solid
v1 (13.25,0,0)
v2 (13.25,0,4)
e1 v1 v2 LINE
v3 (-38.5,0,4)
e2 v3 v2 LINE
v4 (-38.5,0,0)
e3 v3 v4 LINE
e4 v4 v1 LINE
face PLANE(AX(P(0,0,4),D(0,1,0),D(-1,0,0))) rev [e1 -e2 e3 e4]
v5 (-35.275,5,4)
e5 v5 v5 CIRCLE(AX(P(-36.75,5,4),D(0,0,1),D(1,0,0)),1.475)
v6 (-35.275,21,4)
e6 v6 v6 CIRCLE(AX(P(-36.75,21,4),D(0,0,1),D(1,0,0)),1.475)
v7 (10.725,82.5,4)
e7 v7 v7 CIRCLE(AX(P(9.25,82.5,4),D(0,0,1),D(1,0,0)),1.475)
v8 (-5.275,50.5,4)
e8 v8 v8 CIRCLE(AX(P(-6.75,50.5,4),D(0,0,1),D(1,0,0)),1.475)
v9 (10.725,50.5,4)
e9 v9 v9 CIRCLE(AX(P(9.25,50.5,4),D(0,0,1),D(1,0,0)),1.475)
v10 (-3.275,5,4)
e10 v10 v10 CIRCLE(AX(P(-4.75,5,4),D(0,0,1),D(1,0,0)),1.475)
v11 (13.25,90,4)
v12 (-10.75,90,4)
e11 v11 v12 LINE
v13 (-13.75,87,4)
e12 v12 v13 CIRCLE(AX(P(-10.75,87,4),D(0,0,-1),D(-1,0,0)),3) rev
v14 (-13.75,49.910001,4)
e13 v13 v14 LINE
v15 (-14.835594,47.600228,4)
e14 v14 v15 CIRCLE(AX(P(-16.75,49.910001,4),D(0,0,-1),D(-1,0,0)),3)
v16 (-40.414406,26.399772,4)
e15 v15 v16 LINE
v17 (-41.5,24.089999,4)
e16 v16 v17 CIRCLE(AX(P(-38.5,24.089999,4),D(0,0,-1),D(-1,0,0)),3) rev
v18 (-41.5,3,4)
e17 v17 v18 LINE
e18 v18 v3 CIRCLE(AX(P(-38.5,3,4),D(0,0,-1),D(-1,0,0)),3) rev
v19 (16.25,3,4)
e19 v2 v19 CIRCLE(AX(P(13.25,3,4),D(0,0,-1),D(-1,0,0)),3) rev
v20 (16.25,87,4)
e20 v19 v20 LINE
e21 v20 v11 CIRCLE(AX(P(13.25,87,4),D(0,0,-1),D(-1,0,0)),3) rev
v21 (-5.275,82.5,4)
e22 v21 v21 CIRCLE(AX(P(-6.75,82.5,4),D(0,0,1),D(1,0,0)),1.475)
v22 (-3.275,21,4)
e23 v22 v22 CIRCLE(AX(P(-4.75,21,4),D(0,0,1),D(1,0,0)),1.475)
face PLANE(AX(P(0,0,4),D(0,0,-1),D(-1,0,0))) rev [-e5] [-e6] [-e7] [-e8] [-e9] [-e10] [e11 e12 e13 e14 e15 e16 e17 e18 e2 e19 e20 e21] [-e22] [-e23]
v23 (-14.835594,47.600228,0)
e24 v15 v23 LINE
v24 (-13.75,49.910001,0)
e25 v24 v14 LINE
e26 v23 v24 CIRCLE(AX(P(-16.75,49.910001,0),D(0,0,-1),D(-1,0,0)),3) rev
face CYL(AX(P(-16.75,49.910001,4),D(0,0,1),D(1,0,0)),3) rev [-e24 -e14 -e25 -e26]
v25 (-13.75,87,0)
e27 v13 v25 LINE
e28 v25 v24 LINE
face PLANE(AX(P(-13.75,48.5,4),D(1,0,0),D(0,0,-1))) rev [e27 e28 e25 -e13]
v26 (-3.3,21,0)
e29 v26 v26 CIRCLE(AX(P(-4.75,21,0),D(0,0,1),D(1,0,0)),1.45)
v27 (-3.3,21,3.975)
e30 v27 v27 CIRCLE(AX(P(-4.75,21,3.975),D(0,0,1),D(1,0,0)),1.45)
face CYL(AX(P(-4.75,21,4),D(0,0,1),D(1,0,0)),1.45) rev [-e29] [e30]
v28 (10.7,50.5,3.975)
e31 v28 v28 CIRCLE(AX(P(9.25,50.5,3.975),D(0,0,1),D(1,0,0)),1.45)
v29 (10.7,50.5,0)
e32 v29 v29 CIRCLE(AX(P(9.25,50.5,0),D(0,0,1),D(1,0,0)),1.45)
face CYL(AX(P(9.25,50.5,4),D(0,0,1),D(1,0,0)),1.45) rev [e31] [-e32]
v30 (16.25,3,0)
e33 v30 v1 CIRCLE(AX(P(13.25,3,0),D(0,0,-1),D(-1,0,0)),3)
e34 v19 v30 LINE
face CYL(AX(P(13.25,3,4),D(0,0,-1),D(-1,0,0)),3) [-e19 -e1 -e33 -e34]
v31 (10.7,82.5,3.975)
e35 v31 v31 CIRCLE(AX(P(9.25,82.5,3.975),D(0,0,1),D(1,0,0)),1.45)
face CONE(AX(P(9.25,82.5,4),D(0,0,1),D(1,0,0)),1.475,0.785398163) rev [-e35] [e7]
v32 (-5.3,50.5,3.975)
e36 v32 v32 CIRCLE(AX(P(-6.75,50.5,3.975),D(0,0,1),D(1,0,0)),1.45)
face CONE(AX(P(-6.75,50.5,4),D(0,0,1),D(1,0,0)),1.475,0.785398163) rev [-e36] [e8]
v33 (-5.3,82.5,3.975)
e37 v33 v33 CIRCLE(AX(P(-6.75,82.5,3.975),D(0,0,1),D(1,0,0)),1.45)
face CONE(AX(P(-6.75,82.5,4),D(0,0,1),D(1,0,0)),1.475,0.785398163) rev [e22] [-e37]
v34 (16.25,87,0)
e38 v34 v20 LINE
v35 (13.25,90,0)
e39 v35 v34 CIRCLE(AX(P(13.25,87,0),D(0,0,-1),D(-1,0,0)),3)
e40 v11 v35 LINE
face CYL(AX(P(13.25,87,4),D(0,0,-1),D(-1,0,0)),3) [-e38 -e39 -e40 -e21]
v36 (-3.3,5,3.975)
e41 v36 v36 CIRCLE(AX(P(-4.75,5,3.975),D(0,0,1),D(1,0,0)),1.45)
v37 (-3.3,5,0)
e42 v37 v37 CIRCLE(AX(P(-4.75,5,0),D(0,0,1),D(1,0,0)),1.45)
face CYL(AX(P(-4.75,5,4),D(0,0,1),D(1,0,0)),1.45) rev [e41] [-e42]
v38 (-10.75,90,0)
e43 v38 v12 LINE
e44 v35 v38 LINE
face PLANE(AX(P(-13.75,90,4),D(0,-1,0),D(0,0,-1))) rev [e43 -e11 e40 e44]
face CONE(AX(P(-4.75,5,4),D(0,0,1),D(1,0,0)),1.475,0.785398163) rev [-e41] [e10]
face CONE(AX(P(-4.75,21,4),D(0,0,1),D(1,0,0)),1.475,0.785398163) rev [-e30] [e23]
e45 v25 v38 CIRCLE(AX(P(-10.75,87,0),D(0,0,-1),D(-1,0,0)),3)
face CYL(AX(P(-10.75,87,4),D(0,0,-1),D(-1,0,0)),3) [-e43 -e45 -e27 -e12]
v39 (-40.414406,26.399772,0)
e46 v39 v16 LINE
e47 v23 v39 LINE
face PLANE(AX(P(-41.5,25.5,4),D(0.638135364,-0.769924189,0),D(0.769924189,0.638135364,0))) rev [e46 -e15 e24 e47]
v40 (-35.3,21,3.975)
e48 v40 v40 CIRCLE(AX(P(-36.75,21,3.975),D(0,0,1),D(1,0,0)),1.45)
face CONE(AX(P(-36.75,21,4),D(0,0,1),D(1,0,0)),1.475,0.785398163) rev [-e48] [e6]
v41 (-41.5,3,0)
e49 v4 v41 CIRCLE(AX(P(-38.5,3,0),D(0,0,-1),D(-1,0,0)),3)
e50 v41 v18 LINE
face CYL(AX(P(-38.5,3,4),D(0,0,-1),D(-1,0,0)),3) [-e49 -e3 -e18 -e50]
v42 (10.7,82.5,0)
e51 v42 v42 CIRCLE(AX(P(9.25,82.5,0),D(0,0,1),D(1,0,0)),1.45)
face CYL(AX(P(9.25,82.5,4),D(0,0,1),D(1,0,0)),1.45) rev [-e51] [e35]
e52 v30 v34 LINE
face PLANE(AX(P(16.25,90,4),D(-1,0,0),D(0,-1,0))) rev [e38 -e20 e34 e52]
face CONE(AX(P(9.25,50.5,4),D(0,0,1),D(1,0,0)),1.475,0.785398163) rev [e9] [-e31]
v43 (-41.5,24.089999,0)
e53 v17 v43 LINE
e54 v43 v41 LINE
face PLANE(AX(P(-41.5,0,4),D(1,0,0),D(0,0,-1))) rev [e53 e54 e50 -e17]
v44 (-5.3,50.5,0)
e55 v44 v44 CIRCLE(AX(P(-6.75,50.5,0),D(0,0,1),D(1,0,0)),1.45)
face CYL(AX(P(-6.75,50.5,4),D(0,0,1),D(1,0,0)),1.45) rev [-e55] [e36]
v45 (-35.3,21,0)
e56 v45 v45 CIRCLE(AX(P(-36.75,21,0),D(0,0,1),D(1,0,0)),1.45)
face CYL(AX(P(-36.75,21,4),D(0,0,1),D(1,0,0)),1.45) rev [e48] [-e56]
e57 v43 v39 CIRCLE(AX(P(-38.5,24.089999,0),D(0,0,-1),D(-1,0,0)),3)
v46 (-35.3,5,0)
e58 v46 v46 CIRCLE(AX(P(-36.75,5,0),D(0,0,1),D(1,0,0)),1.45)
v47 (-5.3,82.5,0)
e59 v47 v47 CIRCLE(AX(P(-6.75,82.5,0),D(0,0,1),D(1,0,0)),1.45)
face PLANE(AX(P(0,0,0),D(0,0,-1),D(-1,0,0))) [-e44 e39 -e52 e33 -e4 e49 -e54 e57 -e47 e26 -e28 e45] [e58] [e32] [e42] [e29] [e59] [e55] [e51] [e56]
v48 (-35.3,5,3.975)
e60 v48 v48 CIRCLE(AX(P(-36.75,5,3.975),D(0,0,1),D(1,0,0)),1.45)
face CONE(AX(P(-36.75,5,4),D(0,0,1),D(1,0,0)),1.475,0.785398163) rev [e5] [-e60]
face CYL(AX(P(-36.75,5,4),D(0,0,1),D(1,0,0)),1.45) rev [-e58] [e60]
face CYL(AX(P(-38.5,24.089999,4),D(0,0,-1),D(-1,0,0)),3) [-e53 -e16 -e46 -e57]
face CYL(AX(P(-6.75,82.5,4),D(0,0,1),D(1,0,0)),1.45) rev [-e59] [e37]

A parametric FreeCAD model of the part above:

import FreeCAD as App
import Part
import Sketcher

V = App.Vector


def edges_at(feature, points):
    """Names of the edges that pass closest to the given points."""
    edges = feature.Shape.Edges
    near = lambda p: min(range(len(edges)), key=lambda i: edges[i].distToShape(Part.Vertex(*p))[0])
    return sorted({f"Edge{near(p) + 1}" for p in points})


def add_polygon(sketch, points):
    """Adds a closed chain of lines whose ends are joined by coincident constraints."""
    first, n = sketch.GeometryCount, len(points)
    for a, b in zip(points, points[1:] + points[:1]):
        sketch.addGeometry(Part.LineSegment(App.Vector(*a, 0), App.Vector(*b, 0)), False)
    for i in range(n):
        sketch.addConstraint(Sketcher.Constraint("Coincident", first + i, 2, first + (i + 1) % n, 1))

doc = App.newDocument("Part")
params = doc.addObject("Spreadsheet::Sheet", "Params")
for row, (alias, value) in enumerate([
    ("sketch1_width", "30 mm"),
    ("sketch1_height", "90 mm"),
    ("sketch1_height2", "41.5 mm"),
    ("sketch1_height3", "25.5 mm"),
    ("sketch1_width2", "57.75 mm"),
    ("pad1_length", "4 mm"),
    ("sketch2_diameter", "2.9 mm"),
    ("hole_diameter", "2.9 mm"),
    ("hole_csink_diameter", "2.95 mm"),
    ("fillet_radius", "3 mm"),
], start=1):
    params.set(f"A{row}", alias)
    params.set(f"B{row}", "=" + value)
    params.setAlias(f"B{row}", alias)

body = doc.addObject("PartDesign::Body", "Body")

# Sketch on XY plane
sketch1 = body.newObject("Sketcher::SketchObject", "Sketch")
sketch1.AttachmentSupport = (doc.getObject("XY_Plane"), [""])
sketch1.MapMode = "FlatFace"
add_polygon(sketch1, [(-42, 0), (16, 0), (16, 90), (-14, 90), (-14, 48), (-42, 26)])  # lines 0-5
sketch1.addConstraint(Sketcher.Constraint("Horizontal", 0))
sketch1.addConstraint(Sketcher.Constraint("Vertical", 1))
sketch1.addConstraint(Sketcher.Constraint("Horizontal", 2))
sketch1.addConstraint(Sketcher.Constraint("Vertical", 3))
sketch1.addConstraint(Sketcher.Constraint("Vertical", 5))
sketch1.addConstraint(Sketcher.Constraint("PointOnObject", 0, 2, -1))
sketch1.addConstraint(Sketcher.Constraint("DistanceX", 2, 2, 2, 1, 30.0))
sketch1.addConstraint(Sketcher.Constraint("DistanceY", 1, 1, 1, 2, 90.0))
sketch1.addConstraint(Sketcher.Constraint("DistanceY", 3, 2, 3, 1, 41.5))
sketch1.addConstraint(Sketcher.Constraint("DistanceY", 5, 2, 5, 1, 25.5))
sketch1.addConstraint(Sketcher.Constraint("DistanceX", 0, 1, 0, 2, 57.75))
sketch1.addConstraint(Sketcher.Constraint("DistanceX", 4, 2, -1, 1, 41.5))
sketch1.setExpression("Constraints[12]", "Params.sketch1_width")
sketch1.setExpression("Constraints[13]", "Params.sketch1_height")
sketch1.setExpression("Constraints[14]", "Params.sketch1_height2")
sketch1.setExpression("Constraints[15]", "Params.sketch1_height3")
sketch1.setExpression("Constraints[16]", "Params.sketch1_width2")
pad1 = body.newObject("PartDesign::Pad", "Pad")
pad1.Profile = sketch1
pad1.setExpression("Length", "Params.pad1_length")

# Sketch on XY plane
sketch2 = body.newObject("Sketcher::SketchObject", "Sketch001")
sketch2.AttachmentSupport = (doc.getObject("XY_Plane"), [""])
sketch2.MapMode = "FlatFace"
sketch2.AttachmentOffset = App.Placement(V(0, 0, 4), App.Rotation())
sketch2.addGeometry(Part.Circle(V(9.2, 50.5, 0), V(0, 0, 1), 1.4), False)
sketch2.addGeometry(Part.Circle(V(-36.8, 5, 0), V(0, 0, 1), 1.4), False)
sketch2.addGeometry(Part.Circle(V(-36.8, 21, 0), V(0, 0, 1), 1.4), False)
sketch2.addGeometry(Part.Circle(V(-4.8, 5, 0), V(0, 0, 1), 1.4), False)
sketch2.addGeometry(Part.Circle(V(-4.8, 21, 0), V(0, 0, 1), 1.4), False)
sketch2.addGeometry(Part.Circle(V(-6.8, 82.5, 0), V(0, 0, 1), 1.4), False)
sketch2.addGeometry(Part.Circle(V(9.2, 82.5, 0), V(0, 0, 1), 1.4), False)
sketch2.addGeometry(Part.Circle(V(-6.8, 50.5, 0), V(0, 0, 1), 1.4), False)
sketch2.addConstraint(Sketcher.Constraint("Equal", 0, 1))
sketch2.addConstraint(Sketcher.Constraint("Equal", 1, 2))
sketch2.addConstraint(Sketcher.Constraint("Equal", 2, 3))
sketch2.addConstraint(Sketcher.Constraint("Equal", 3, 4))
sketch2.addConstraint(Sketcher.Constraint("Equal", 4, 5))
sketch2.addConstraint(Sketcher.Constraint("Equal", 5, 6))
sketch2.addConstraint(Sketcher.Constraint("Equal", 6, 7))
sketch2.addConstraint(Sketcher.Constraint("Horizontal", 1, 3, 3, 3))
sketch2.addConstraint(Sketcher.Constraint("Horizontal", 2, 3, 4, 3))
sketch2.addConstraint(Sketcher.Constraint("Horizontal", 5, 3, 6, 3))
sketch2.addConstraint(Sketcher.Constraint("Horizontal", 0, 3, 7, 3))
sketch2.addConstraint(Sketcher.Constraint("Vertical", 1, 3, 2, 3))
sketch2.addConstraint(Sketcher.Constraint("Vertical", 3, 3, 4, 3))
sketch2.addConstraint(Sketcher.Constraint("Vertical", 0, 3, 6, 3))
sketch2.addConstraint(Sketcher.Constraint("Vertical", 5, 3, 7, 3))
sketch2.addConstraint(Sketcher.Constraint("Diameter", 0, 2.9))
sketch2.addConstraint(Sketcher.Constraint("DistanceY", -1, 1, 1, 3, 5.0))
sketch2.addConstraint(Sketcher.Constraint("DistanceY", -1, 1, 2, 3, 21.0))
sketch2.addConstraint(Sketcher.Constraint("DistanceX", 1, 3, 0, 3, 46.0))
sketch2.addConstraint(Sketcher.Constraint("DistanceX", 1, 3, 3, 3, 32.0))
sketch2.addConstraint(Sketcher.Constraint("DistanceX", 5, 3, 0, 3, 16.0))
sketch2.addConstraint(Sketcher.Constraint("DistanceY", 0, 3, 5, 3, 32.0))
sketch2.addConstraint(Sketcher.Constraint("DistanceY", -1, 1, 0, 3, 50.5))
sketch2.addConstraint(Sketcher.Constraint("DistanceX", -1, 1, 0, 3, 9.25))
sketch2.setExpression("Constraints[15]", "Params.sketch2_diameter")
doc.recompute()
hole = body.newObject("PartDesign::Hole", "Hole")
hole.Profile = sketch2
hole.ThreadType = "None"
hole.setExpression("Diameter", "Params.hole_diameter")
hole.DepthType = "ThroughAll"
hole.HoleCutType = "Countersink"
hole.setExpression("HoleCutDiameter", "Params.hole_csink_diameter")
hole.HoleCutCountersinkAngle = 90
doc.recompute()

fillet = body.newObject("PartDesign::Fillet", "Fillet")
fillet.Base = (hole, edges_at(hole, [
    (-41.5, 0, 2),
    (-41.5, 25.5, 2),
    (-13.75, 48.5, 2),
    (-13.75, 90, 2),
    (16.25, 90, 2),
    (16.25, 0, 2),
]))
fillet.setExpression("Radius", "Params.fillet_radius")

doc.recompute()
